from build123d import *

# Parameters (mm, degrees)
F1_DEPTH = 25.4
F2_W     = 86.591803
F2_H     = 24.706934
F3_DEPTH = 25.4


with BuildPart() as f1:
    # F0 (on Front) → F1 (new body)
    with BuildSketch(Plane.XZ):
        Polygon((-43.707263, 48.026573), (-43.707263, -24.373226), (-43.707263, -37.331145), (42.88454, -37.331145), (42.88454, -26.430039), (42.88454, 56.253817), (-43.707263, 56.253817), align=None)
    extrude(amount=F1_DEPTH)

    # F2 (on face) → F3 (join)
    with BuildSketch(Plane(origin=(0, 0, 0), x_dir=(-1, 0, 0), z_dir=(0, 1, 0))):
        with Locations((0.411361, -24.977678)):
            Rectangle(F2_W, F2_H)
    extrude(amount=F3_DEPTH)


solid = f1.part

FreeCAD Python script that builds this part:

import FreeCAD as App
import Part
import Sketcher

V = App.Vector
Q = App.Units.Quantity


def add_polygon(sketch, points):
    """Adds a closed chain of lines whose ends are joined by coincident constraints."""
    first, n = sketch.GeometryCount, len(points)
    for a, b in zip(points, points[1:] + points[:1]):
        sketch.addGeometry(Part.LineSegment(App.Vector(*a, 0), App.Vector(*b, 0)), False)
    for i in range(n):
        sketch.addConstraint(Sketcher.Constraint("Coincident", first + i, 2, first + (i + 1) % n, 1))

doc = App.newDocument("Part")
body = doc.addObject("PartDesign::Body", "Body")

sketch1 = body.newObject("Sketcher::SketchObject", "Sketch")
sketch1.AttachmentSupport = (doc.getObject("XZ_Plane"), [""])
sketch1.MapMode = "FlatFace"
add_polygon(sketch1, [(-44, -37), (43, -37), (43, 56), (-44, 56)])
sketch1.addConstraint([
    Sketcher.Constraint("Horizontal", 0),
    Sketcher.Constraint("Vertical", 1),
    Sketcher.Constraint("Horizontal", 2),
    Sketcher.Constraint("Vertical", 3),
    Sketcher.Constraint("DistanceY", 1, 1, 1, 2, Q("93.584962 mm")),
    Sketcher.Constraint("DistanceX", 0, 1, 0, 2, Q("86.591803 mm")),
    Sketcher.Constraint("DistanceX", -1, 1, 0, 2, Q("42.88454 mm")),
    Sketcher.Constraint("DistanceY", 0, 2, -1, 1, Q("37.331145 mm")),
])
pad1 = body.newObject("PartDesign::Pad", "Pad")
pad1.Profile = sketch1
pad1.Length = Q("1 in")

sketch2 = body.newObject("Sketcher::SketchObject", "Sketch001")
sketch2.AttachmentSupport = (doc.getObject("XZ_Plane"), [""])
sketch2.MapMode = "FlatFace"
add_polygon(sketch2, [(43, -13), (43, -37), (-44, -37), (-44, -13)])
sketch2.addConstraint([
    Sketcher.Constraint("Vertical", 0),
    Sketcher.Constraint("Horizontal", 1),
    Sketcher.Constraint("Vertical", 2),
    Sketcher.Constraint("Horizontal", 3),
    Sketcher.Constraint("DistanceX", 1, 2, 1, 1, Q("86.591803 mm")),
    Sketcher.Constraint("DistanceY", 0, 2, 0, 1, Q("24.706934 mm")),
    Sketcher.Constraint("DistanceX", -1, 1, 0, 2, Q("42.88454 mm")),
    Sketcher.Constraint("DistanceY", 2, 2, -1, 1, Q("12.624211 mm")),
])
pad2 = body.newObject("PartDesign::Pad", "Pad001")
pad2.Profile = sketch2
pad2.Length = Q("1 in")
pad2.Reversed = True

doc.recompute()
